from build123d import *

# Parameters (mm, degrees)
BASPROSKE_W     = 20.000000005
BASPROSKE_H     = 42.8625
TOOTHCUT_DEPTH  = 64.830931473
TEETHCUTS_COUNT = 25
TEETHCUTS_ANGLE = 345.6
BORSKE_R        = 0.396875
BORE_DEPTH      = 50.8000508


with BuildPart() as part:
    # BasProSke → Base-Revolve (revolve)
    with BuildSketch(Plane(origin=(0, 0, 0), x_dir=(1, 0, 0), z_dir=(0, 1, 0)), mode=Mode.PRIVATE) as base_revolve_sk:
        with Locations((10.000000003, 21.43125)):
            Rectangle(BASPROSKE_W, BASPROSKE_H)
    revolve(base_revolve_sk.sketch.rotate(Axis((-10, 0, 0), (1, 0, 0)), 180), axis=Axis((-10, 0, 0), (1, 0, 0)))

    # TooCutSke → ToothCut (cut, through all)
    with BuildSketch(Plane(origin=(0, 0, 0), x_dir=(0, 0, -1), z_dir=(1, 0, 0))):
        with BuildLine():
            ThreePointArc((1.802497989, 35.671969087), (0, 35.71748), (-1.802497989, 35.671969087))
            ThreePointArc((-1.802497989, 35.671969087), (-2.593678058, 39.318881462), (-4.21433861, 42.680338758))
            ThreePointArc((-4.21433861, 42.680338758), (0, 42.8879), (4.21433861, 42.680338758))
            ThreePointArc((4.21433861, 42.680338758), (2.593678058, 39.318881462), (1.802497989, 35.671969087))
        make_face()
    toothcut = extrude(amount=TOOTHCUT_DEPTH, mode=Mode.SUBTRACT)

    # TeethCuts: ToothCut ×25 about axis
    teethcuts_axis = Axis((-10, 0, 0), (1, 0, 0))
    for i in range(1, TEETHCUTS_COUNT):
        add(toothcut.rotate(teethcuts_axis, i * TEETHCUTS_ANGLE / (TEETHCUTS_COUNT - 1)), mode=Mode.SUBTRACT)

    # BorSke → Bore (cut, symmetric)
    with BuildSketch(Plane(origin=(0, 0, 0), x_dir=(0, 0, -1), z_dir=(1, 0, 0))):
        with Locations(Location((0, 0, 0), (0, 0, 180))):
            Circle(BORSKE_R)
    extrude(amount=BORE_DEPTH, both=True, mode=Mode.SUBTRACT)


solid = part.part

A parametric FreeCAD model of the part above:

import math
import FreeCAD as App
import Part
import Sketcher

V = App.Vector
Q = App.Units.Quantity

doc = App.newDocument("Part")
body = doc.addObject("PartDesign::Body", "Body")

# Sketch on XZ plane
sketch1 = body.newObject("Sketcher::SketchObject", "Sketch")
sketch1.AttachmentSupport = (doc.getObject("XZ_Plane"), [""])
sketch1.MapMode = "FlatFace"
sketch1.addGeometry([
    Part.LineSegment(V(0, -43, 0), V(0, 0, 0)),
    Part.LineSegment(V(0, 0, 0), V(20, 0, 0)),
    Part.LineSegment(V(20, 0, 0), V(20, -43, 0)),
    Part.LineSegment(V(20, -43, 0), V(0, -43, 0)),
], False)
sketch1.addConstraint([
    Sketcher.Constraint("Coincident", 0, 2, 1, 1),
    Sketcher.Constraint("Coincident", 1, 2, 2, 1),
    Sketcher.Constraint("Coincident", 2, 2, 3, 1),
    Sketcher.Constraint("Coincident", 3, 2, 0, 1),
    Sketcher.Constraint("Vertical", 0),
    Sketcher.Constraint("Horizontal", 1),
    Sketcher.Constraint("Vertical", 2),
    Sketcher.Constraint("Horizontal", 3),
    Sketcher.Constraint("Coincident", 0, 2, -1, 1),
    Sketcher.Constraint("DistanceY", 0, 1, 0, 2, Q("1.6875 in")),
    Sketcher.Constraint("DistanceX", 1, 1, 1, 2, 20.0),
])
revolution = body.newObject("PartDesign::Revolution", "Revolution")
revolution.Profile = sketch1
revolution.ReferenceAxis = (sketch1, ["H_Axis"])
revolution.Angle = 360

# Sketch on YZ plane
sketch2 = body.newObject("Sketcher::SketchObject", "Sketch001")
sketch2.AttachmentSupport = (doc.getObject("YZ_Plane"), [""])
sketch2.MapMode = "FlatFace"
sketch2.addGeometry([
    Part.ArcOfCircle(Part.Circle(V(0, 0, 0), V(0, 0, 1), 35.7), math.radians(-2.89), math.radians(2.89)),
    Part.ArcOfCircle(Part.Circle(V(34.2, -17.6, 0), V(0, 0, 1), 15.9), math.radians(58), math.radians(85)),
    Part.ArcOfCircle(Part.Circle(V(0, 0, 0), V(0, 0, 1), 42.9), math.radians(-5.64), math.radians(5.64)),
    Part.ArcOfCircle(Part.Circle(V(34.2, 17.6, 0), V(0, 0, 1), 15.9), math.radians(-85), math.radians(-58)),
], False)
sketch2.addConstraint([
    Sketcher.Constraint("Coincident", 0, 1, 1, 2),
    Sketcher.Constraint("Coincident", 1, 1, 2, 1),
    Sketcher.Constraint("Coincident", 2, 2, 3, 2),
    Sketcher.Constraint("Coincident", 3, 1, 0, 2),
    Sketcher.Constraint("Coincident", 0, 3, -1, 1),
    Sketcher.Constraint("Coincident", 2, 3, -1, 1),
    Sketcher.Constraint("Equal", 1, 3),
    Sketcher.Constraint("Symmetric", 1, 3, 3, 3, -1),
    Sketcher.Constraint("Radius", 1, Q("0.625 in")),
    Sketcher.Constraint("Radius", 0, Q("1.4062 in")),
    Sketcher.Constraint("Radius", 2, Q("1.6885 in")),
    Sketcher.Constraint("DistanceX", -1, 1, 0, 1, 35.671969),
    Sketcher.Constraint("DistanceX", -1, 1, 1, 1, 42.680339),
])
pocket1 = body.newObject("PartDesign::Pocket", "Pocket")
pocket1.Profile = sketch2
pocket1.Type = "ThroughAll"
pocket1.Reversed = True
doc.recompute()

polarpattern = body.newObject("PartDesign::PolarPattern", "PolarPattern")
polarpattern.Originals = [pocket1]
polarpattern.Axis = (doc.getObject("X_Axis"), [""])
polarpattern.Angle = 360
polarpattern.Occurrences = 25
body.Tip = polarpattern

# Sketch on YZ plane
sketch3 = body.newObject("Sketcher::SketchObject", "Sketch002")
sketch3.AttachmentSupport = (doc.getObject("YZ_Plane"), [""])
sketch3.MapMode = "FlatFace"
sketch3.addGeometry(Part.Circle(V(0, 0, 0), V(0, 0, 1), 0.4), False)
sketch3.addConstraint([
    Sketcher.Constraint("Coincident", 0, 3, -1, 1),
    Sketcher.Constraint("Diameter", 0, Q("0.03125 in")),
])
pocket2 = body.newObject("PartDesign::Pocket", "Pocket001")
pocket2.Profile = sketch3
pocket2.Length = 101.600102
pocket2.Midplane = True

doc.recompute()
